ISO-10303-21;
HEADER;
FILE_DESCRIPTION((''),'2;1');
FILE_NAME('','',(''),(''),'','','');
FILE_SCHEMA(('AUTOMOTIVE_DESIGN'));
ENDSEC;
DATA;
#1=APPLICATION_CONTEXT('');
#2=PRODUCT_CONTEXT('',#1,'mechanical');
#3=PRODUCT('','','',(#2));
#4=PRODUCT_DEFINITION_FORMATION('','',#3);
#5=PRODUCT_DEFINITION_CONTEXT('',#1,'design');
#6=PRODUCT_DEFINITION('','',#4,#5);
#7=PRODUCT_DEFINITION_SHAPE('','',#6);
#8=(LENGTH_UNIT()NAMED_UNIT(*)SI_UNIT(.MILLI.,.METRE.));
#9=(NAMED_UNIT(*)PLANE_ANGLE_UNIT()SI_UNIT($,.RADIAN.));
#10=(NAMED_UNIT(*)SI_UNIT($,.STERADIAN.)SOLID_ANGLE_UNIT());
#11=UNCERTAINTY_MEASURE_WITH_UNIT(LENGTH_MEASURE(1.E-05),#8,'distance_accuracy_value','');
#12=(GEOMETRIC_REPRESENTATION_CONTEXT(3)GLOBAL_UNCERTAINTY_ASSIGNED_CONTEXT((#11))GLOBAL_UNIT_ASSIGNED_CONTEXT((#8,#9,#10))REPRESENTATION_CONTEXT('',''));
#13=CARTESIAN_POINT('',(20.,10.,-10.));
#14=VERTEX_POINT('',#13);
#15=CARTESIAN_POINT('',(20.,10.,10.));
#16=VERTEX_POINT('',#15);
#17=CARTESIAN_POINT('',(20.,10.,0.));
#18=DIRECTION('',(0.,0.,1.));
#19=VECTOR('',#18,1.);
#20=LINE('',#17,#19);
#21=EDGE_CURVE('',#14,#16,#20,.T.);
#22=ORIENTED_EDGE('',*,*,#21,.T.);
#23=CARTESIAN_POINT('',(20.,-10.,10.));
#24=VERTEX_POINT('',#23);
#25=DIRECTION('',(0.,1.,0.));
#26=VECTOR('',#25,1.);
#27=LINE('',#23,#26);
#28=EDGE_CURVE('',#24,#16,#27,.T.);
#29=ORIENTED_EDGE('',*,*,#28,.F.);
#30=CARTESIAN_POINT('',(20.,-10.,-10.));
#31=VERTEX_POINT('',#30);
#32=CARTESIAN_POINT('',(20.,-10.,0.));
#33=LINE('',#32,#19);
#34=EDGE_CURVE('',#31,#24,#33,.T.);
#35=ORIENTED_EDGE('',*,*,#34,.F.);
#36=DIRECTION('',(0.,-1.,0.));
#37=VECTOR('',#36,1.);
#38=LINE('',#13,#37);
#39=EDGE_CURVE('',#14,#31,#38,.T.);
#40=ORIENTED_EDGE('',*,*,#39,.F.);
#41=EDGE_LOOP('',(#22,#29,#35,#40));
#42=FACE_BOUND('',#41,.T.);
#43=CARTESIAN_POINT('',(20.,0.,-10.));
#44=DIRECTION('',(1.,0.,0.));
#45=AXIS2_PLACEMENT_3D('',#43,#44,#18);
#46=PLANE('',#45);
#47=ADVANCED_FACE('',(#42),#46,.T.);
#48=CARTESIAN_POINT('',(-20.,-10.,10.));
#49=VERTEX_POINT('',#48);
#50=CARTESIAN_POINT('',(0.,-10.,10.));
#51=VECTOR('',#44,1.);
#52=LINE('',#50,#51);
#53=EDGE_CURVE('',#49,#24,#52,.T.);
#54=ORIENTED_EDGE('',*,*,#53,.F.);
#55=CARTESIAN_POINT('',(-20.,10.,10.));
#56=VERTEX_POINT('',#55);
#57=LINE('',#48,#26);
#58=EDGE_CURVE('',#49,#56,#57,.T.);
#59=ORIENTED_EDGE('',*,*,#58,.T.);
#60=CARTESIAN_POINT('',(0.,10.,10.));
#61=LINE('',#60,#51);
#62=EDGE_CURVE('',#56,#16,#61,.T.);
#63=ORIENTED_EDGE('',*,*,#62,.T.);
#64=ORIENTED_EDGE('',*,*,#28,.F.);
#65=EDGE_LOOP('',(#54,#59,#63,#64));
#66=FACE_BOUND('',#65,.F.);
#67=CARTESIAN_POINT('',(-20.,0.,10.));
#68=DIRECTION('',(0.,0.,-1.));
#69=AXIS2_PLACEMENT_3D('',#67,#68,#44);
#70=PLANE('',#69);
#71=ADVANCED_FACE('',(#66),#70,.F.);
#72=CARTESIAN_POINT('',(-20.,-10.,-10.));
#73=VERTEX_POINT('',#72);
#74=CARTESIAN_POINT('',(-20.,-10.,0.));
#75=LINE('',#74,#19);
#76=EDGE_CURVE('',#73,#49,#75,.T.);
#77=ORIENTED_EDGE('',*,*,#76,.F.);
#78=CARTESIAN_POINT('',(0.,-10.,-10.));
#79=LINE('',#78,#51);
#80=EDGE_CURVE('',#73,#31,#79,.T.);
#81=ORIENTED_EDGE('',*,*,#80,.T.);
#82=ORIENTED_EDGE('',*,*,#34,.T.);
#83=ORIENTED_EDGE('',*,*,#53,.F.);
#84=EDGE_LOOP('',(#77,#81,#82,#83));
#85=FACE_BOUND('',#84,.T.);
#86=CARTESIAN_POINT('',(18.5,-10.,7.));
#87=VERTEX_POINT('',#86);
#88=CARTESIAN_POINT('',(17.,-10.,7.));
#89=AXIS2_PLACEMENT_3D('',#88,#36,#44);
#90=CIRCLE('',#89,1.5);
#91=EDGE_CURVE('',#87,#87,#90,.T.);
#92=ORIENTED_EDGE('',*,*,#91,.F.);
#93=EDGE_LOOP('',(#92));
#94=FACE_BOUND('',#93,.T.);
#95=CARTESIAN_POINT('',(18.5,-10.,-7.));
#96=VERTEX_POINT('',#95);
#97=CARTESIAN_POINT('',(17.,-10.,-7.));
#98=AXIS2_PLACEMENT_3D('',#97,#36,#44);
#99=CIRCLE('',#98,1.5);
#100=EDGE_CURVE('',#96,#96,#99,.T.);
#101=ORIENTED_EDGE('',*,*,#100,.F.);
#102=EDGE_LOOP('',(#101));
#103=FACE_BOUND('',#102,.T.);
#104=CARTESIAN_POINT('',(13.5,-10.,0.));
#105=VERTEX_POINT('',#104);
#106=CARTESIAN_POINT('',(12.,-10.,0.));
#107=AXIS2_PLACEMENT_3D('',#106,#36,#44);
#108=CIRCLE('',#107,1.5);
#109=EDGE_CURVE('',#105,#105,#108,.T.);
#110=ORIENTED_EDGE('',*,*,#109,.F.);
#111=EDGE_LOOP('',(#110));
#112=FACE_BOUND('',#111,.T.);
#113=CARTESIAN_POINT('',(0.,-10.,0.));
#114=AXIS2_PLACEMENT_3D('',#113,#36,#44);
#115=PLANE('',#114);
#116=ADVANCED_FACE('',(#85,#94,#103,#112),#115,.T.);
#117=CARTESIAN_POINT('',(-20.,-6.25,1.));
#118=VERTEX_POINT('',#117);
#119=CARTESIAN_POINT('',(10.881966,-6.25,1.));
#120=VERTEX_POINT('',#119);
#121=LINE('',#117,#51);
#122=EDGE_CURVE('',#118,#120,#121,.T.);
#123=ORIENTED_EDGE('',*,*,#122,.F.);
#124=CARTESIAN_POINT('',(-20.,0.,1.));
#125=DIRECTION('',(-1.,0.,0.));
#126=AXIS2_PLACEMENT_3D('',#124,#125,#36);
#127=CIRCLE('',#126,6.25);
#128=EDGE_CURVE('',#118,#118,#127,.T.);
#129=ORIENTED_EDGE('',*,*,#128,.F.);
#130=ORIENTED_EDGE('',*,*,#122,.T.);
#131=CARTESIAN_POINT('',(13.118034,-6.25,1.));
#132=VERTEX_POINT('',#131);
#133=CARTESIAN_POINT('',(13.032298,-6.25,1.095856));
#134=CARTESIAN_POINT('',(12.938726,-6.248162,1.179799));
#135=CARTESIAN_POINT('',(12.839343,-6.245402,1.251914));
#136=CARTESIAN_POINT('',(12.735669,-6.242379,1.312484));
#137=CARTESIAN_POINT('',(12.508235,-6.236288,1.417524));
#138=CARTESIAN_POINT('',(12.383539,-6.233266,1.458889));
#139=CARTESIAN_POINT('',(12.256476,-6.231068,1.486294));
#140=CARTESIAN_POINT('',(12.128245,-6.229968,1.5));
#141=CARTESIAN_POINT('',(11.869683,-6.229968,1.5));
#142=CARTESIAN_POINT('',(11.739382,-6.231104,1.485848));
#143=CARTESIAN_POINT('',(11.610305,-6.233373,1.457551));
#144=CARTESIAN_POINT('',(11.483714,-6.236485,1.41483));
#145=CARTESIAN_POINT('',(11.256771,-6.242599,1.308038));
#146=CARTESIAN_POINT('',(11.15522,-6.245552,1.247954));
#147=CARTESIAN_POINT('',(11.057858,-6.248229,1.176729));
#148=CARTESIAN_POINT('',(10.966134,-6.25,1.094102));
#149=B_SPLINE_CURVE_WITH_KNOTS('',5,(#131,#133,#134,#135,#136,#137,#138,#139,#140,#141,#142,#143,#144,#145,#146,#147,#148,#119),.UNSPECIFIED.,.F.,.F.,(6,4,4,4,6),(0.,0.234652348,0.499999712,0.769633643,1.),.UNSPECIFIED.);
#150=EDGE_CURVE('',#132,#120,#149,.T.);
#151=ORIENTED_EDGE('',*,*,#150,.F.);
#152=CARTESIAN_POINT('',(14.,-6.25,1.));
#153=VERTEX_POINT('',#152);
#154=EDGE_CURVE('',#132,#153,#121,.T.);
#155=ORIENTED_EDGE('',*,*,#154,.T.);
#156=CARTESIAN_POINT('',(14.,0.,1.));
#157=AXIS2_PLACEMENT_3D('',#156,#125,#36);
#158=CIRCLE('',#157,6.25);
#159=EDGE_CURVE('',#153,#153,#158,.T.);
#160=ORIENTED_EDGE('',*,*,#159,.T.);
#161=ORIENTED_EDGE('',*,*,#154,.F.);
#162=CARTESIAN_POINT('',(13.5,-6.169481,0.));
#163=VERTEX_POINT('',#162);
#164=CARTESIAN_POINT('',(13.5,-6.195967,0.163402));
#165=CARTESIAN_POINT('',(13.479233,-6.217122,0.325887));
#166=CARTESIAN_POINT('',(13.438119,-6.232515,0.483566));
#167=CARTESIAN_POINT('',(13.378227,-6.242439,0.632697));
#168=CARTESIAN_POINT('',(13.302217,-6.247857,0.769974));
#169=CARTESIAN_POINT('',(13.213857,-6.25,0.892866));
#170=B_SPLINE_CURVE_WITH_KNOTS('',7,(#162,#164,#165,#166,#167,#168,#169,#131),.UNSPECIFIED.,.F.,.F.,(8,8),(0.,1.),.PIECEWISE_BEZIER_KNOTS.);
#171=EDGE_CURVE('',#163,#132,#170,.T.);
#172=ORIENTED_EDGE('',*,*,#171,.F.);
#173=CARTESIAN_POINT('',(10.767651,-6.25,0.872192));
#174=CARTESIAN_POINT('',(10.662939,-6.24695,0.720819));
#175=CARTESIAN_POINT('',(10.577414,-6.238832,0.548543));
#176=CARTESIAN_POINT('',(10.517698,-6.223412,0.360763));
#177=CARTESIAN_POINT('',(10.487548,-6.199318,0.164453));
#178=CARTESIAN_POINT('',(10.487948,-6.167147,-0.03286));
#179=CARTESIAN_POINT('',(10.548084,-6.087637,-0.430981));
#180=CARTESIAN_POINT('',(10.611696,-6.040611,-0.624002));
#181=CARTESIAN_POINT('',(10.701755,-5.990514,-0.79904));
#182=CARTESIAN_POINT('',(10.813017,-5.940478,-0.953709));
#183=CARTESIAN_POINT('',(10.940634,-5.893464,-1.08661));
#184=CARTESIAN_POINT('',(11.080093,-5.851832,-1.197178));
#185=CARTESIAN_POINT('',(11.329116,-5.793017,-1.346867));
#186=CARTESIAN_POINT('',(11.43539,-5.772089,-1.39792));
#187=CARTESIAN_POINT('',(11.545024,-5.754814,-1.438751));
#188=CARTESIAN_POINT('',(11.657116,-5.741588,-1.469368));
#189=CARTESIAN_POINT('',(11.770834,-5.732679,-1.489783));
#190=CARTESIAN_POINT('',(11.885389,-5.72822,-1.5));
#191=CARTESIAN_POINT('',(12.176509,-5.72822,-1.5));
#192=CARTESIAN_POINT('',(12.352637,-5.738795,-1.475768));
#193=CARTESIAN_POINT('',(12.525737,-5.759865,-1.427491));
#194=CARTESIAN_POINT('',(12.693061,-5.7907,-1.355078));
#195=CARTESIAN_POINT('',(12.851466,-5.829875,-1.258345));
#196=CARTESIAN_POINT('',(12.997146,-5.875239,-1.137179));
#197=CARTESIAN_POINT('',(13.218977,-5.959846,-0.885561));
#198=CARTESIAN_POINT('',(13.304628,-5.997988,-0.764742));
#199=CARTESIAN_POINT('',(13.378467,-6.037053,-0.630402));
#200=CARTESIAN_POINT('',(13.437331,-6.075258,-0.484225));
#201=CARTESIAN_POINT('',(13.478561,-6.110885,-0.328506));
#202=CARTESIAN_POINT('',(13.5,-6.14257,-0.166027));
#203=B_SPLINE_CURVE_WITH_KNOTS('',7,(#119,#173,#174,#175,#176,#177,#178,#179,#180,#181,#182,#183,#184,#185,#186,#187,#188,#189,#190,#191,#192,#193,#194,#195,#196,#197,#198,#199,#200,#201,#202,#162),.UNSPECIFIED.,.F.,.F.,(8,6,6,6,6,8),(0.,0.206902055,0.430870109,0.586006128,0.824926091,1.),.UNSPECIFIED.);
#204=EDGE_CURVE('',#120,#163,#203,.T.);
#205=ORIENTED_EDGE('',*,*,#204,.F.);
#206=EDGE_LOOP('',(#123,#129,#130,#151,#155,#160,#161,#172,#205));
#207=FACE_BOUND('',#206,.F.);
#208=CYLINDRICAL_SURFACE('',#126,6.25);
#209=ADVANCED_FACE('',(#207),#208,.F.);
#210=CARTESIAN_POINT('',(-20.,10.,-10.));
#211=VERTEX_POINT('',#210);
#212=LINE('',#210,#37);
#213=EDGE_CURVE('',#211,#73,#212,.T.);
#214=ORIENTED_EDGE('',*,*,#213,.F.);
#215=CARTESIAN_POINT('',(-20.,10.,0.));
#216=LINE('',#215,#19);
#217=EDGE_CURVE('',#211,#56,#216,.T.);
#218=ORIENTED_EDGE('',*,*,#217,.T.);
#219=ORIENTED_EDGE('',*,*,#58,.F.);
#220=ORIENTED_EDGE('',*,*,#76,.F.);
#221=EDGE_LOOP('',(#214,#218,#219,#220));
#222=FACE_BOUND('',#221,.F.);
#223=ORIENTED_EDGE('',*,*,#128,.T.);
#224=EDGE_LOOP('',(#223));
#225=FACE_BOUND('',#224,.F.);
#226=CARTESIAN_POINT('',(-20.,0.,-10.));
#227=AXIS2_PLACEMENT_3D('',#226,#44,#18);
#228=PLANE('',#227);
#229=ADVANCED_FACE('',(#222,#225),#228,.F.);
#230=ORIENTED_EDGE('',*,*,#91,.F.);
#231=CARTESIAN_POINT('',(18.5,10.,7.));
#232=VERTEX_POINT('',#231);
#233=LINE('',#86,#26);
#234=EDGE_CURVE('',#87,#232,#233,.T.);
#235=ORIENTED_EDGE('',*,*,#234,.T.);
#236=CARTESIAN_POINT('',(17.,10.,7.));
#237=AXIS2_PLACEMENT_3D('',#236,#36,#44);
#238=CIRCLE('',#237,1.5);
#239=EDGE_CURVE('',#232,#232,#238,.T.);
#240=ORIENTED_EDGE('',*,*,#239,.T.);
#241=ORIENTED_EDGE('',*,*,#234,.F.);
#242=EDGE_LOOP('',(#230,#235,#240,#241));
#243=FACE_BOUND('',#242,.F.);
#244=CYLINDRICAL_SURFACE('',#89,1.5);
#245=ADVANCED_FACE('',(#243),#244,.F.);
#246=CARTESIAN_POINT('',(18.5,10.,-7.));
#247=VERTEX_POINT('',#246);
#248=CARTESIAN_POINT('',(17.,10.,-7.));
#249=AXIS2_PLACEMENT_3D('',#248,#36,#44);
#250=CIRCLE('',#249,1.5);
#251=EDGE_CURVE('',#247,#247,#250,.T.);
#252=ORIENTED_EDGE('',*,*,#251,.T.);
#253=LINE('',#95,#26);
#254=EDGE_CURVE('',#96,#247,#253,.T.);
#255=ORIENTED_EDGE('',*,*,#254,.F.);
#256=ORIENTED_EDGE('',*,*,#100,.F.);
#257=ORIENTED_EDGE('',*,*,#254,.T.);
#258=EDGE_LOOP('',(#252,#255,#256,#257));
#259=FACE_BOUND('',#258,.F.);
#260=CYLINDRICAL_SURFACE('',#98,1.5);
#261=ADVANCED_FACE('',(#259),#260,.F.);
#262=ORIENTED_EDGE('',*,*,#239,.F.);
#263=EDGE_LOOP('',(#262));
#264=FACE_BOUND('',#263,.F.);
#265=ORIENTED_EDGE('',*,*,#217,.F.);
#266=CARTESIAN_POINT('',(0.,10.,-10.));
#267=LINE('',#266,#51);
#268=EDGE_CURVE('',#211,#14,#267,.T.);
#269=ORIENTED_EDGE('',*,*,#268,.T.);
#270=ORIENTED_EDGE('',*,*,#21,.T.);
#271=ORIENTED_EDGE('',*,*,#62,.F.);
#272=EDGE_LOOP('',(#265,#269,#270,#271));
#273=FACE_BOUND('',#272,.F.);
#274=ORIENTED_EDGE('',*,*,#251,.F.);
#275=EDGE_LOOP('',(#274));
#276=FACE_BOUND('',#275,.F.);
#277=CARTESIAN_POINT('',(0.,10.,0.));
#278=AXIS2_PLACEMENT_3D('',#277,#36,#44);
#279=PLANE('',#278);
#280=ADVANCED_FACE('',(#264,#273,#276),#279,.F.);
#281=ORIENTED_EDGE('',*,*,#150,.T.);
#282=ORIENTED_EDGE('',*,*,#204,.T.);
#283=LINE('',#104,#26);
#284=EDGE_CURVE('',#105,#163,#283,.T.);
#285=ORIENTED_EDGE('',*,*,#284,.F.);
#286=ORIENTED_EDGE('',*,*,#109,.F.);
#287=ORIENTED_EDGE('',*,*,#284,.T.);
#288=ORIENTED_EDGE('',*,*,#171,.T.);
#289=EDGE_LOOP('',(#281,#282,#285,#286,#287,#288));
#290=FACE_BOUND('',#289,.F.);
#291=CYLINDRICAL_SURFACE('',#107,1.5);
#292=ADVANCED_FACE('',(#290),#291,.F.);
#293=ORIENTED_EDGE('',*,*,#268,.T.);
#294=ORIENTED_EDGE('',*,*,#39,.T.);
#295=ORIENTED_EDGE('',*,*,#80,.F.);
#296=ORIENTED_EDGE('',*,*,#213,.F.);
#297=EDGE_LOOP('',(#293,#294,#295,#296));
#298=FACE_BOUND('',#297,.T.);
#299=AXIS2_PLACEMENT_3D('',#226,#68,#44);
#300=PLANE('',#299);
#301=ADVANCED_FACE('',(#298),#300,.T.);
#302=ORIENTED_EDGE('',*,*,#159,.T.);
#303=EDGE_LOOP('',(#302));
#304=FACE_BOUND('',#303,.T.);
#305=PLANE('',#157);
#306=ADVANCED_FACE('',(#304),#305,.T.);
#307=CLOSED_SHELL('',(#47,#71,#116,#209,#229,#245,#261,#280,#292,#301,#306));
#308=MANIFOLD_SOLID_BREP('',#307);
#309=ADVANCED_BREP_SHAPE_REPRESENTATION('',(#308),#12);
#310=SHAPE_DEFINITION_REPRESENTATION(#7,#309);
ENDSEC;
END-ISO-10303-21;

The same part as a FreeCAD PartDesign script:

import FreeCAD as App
import Part
import Sketcher
from FreeCAD import Vector
Q = App.Units.Quantity


def add_polygon(sketch, points):
    """Adds a closed chain of lines whose ends are joined by coincident constraints."""
    first, n = sketch.GeometryCount, len(points)
    for a, b in zip(points, points[1:] + points[:1]):
        sketch.addGeometry(Part.LineSegment(App.Vector(*a, 0), App.Vector(*b, 0)), False)
    for i in range(n):
        sketch.addConstraint(Sketcher.Constraint("Coincident", first + i, 2, first + (i + 1) % n, 1))

doc = App.newDocument("Part")
body = doc.addObject("PartDesign::Body", "Body")

sketch1 = doc.addObject("Sketcher::SketchObject", "Sketch")
body.addObject(sketch1)
sketch1.AttachmentSupport = (doc.XZ_Plane, [""])
sketch1.MapMode = "FlatFace"
add_polygon(sketch1, [(-20, 10), (-20, -10), (20, -10), (20, 10)])
sketch1.addConstraint([
    Sketcher.Constraint("Vertical", 0),
    Sketcher.Constraint("Horizontal", 1),
    Sketcher.Constraint("Vertical", 2),
    Sketcher.Constraint("Horizontal", 3),
    Sketcher.Constraint("Symmetric", 0, 2, 2, 2, -1, 1),
    Sketcher.Constraint("DistanceX", 1, 1, 1, 2, Q("40 mm")),
    Sketcher.Constraint("DistanceY", 0, 2, 0, 1, Q("20 mm")),
])
pad1 = doc.addObject("PartDesign::Pad", "Pad")
body.addObject(pad1)
pad1.Profile = sketch1
pad1.Type = "TwoLengths"
pad1.Length = 10
pad1.Length2 = 10

sketch2 = doc.addObject("Sketcher::SketchObject", "Sketch001")
body.addObject(sketch2)
sketch2.AttachmentSupport = (doc.YZ_Plane, [""])
sketch2.MapMode = "FlatFace"
sketch2.AttachmentOffset = App.Placement(Vector(0, 0, -20), App.Rotation())
sketch2.addGeometry(Part.Circle(Vector(0, 1, 0), Vector(0, 0, 1), 6), False)
sketch2.addConstraint([
    Sketcher.Constraint("PointOnObject", 0, 3, -2),
    Sketcher.Constraint("Diameter", 0, Q("12.5 mm")),
    Sketcher.Constraint("DistanceY", -1, 1, 0, 3, Q("1 mm")),
])
pocket1 = doc.addObject("PartDesign::Pocket", "Pocket")
body.addObject(pocket1)
pocket1.Profile = sketch2
pocket1.Length = 34
pocket1.Reversed = True

sketch3 = doc.addObject("Sketcher::SketchObject", "Sketch002")
body.addObject(sketch3)
sketch3.AttachmentSupport = (doc.XZ_Plane, [""])
sketch3.MapMode = "FlatFace"
sketch3.AttachmentOffset = App.Placement(Vector(0, 0, 10), App.Rotation())
sketch3.addGeometry([
    Part.Circle(Vector(17, 7, 0), Vector(0, 0, 1), 1.5),
    Part.Circle(Vector(17, -7, 0), Vector(0, 0, 1), 1.5),
], False)
sketch3.addConstraint([
    Sketcher.Constraint("Equal", 0, 1),
    Sketcher.Constraint("Symmetric", 0, 3, 1, 3, -1),
    Sketcher.Constraint("Diameter", 0, Q("3 mm")),
    Sketcher.Constraint("DistanceX", -1, 1, 0, 3, Q("17 mm")),
    Sketcher.Constraint("DistanceY", -1, 1, 0, 3, Q("7 mm")),
])
pocket2 = doc.addObject("PartDesign::Pocket", "Pocket001")
body.addObject(pocket2)
pocket2.Profile = sketch3
pocket2.Type = "ThroughAll"

sketch4 = doc.addObject("Sketcher::SketchObject", "Sketch003")
body.addObject(sketch4)
sketch4.AttachmentSupport = (doc.XZ_Plane, [""])
sketch4.MapMode = "FlatFace"
sketch4.AttachmentOffset = App.Placement(Vector(0, 0, 10), App.Rotation())
sketch4.addGeometry(Part.Circle(Vector(12, 0, 0), Vector(0, 0, 1), 1.5), False)
sketch4.addConstraint([
    Sketcher.Constraint("PointOnObject", 0, 3, -1),
    Sketcher.Constraint("Diameter", 0, Q("3 mm")),
    Sketcher.Constraint("DistanceX", -1, 1, 0, 3, Q("12 mm")),
])
pocket3 = doc.addObject("PartDesign::Pocket", "Pocket002")
body.addObject(pocket3)
pocket3.Profile = sketch4
pocket3.Length = 4.27278

doc.recompute()
